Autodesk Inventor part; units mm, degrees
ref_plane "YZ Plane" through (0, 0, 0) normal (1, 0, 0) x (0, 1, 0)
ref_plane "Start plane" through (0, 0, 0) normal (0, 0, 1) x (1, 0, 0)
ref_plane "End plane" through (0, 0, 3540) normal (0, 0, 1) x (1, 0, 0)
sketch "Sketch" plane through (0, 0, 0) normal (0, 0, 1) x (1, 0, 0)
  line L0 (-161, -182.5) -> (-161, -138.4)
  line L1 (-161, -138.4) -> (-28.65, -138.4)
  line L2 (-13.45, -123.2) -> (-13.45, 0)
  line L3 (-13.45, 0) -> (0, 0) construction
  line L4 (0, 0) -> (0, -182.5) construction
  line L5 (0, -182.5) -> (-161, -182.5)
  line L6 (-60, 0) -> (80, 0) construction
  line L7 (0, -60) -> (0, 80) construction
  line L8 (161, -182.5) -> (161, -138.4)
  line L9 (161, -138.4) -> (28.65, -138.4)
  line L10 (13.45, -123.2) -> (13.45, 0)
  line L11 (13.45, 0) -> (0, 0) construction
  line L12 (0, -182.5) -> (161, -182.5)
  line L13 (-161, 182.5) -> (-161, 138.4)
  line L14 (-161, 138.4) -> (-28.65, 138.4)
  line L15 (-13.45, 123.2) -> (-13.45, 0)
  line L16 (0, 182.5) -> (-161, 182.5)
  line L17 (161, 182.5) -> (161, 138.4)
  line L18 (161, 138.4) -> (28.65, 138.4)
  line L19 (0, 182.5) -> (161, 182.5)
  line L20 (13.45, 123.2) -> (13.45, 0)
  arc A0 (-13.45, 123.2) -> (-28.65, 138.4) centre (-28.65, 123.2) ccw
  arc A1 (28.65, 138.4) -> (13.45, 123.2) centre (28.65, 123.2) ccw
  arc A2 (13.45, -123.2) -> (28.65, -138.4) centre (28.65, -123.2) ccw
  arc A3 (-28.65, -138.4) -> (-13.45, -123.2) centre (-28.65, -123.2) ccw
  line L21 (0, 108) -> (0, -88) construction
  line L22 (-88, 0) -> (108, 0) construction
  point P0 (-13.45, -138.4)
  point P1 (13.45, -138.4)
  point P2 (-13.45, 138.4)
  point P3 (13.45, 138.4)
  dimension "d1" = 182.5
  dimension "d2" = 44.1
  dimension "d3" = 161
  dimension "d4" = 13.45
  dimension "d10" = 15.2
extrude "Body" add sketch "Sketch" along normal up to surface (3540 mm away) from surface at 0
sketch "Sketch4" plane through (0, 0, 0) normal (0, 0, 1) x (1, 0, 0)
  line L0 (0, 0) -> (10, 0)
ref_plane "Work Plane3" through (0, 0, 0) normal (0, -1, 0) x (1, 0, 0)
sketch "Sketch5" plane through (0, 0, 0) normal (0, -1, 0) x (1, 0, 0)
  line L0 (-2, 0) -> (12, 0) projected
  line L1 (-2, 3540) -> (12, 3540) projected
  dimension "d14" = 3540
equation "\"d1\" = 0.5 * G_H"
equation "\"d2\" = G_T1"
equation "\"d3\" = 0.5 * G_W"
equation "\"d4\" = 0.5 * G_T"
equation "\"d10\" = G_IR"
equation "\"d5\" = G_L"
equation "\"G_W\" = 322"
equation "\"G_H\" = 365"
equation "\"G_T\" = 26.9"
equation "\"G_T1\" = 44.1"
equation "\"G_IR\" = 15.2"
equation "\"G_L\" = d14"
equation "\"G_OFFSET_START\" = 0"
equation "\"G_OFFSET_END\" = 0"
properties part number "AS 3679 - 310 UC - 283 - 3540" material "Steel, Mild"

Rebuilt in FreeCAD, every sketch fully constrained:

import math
import FreeCAD as App
import Part
import Sketcher

V = App.Vector

doc = App.newDocument("Part")
body = doc.addObject("PartDesign::Body", "Body")

# Sketch on XY plane
sketch1 = doc.addObject("Sketcher::SketchObject", "Sketch")
body.addObject(sketch1)
sketch1.AttachmentSupport = (doc.XY_Plane, [""])
sketch1.MapMode = "FlatFace"
sketch1.addGeometry(Part.LineSegment(V(-161, -138, 0), V(-161, -182, 0)), False)
sketch1.addGeometry(Part.LineSegment(V(-161, -182, 0), V(161, -182, 0)), False)
sketch1.addGeometry(Part.LineSegment(V(161, -182, 0), V(161, -138, 0)), False)
sketch1.addGeometry(Part.LineSegment(V(161, -138, 0), V(29, -138, 0)), False)
sketch1.addGeometry(Part.ArcOfCircle(Part.Circle(V(29, -123, 0), V(0, 0, 1), 15), math.radians(180), math.radians(270)), False)
sketch1.addGeometry(Part.LineSegment(V(13, -123, 0), V(13, 123, 0)), False)
sketch1.addGeometry(Part.ArcOfCircle(Part.Circle(V(29, 123, 0), V(0, 0, 1), 15), math.radians(90), math.radians(180)), False)
sketch1.addGeometry(Part.LineSegment(V(29, 138, 0), V(161, 138, 0)), False)
sketch1.addGeometry(Part.LineSegment(V(161, 138, 0), V(161, 182, 0)), False)
sketch1.addGeometry(Part.LineSegment(V(161, 182, 0), V(-161, 182, 0)), False)
sketch1.addGeometry(Part.LineSegment(V(-161, 182, 0), V(-161, 138, 0)), False)
sketch1.addGeometry(Part.LineSegment(V(-161, 138, 0), V(-29, 138, 0)), False)
sketch1.addGeometry(Part.ArcOfCircle(Part.Circle(V(-29, 123, 0), V(0, 0, 1), 15), math.radians(0), math.radians(90)), False)
sketch1.addGeometry(Part.LineSegment(V(-13, 123, 0), V(-13, -123, 0)), False)
sketch1.addGeometry(Part.ArcOfCircle(Part.Circle(V(-29, -123, 0), V(0, 0, 1), 15), math.radians(-90), math.radians(0)), False)
sketch1.addGeometry(Part.LineSegment(V(-29, -138, 0), V(-161, -138, 0)), False)
sketch1.addConstraint(Sketcher.Constraint("Coincident", 0, 2, 1, 1))
sketch1.addConstraint(Sketcher.Constraint("Coincident", 1, 2, 2, 1))
sketch1.addConstraint(Sketcher.Constraint("Coincident", 2, 2, 3, 1))
sketch1.addConstraint(Sketcher.Constraint("Tangent", 3, 2, 4, 2))
sketch1.addConstraint(Sketcher.Constraint("Tangent", 4, 1, 5, 1))
sketch1.addConstraint(Sketcher.Constraint("Tangent", 5, 2, 6, 2))
sketch1.addConstraint(Sketcher.Constraint("Tangent", 6, 1, 7, 1))
sketch1.addConstraint(Sketcher.Constraint("Coincident", 7, 2, 8, 1))
sketch1.addConstraint(Sketcher.Constraint("Coincident", 8, 2, 9, 1))
sketch1.addConstraint(Sketcher.Constraint("Coincident", 9, 2, 10, 1))
sketch1.addConstraint(Sketcher.Constraint("Coincident", 10, 2, 11, 1))
sketch1.addConstraint(Sketcher.Constraint("Tangent", 11, 2, 12, 2))
sketch1.addConstraint(Sketcher.Constraint("Tangent", 12, 1, 13, 1))
sketch1.addConstraint(Sketcher.Constraint("Tangent", 13, 2, 14, 2))
sketch1.addConstraint(Sketcher.Constraint("Tangent", 14, 1, 15, 1))
sketch1.addConstraint(Sketcher.Constraint("Coincident", 15, 2, 0, 1))
sketch1.addConstraint(Sketcher.Constraint("Vertical", 0))
sketch1.addConstraint(Sketcher.Constraint("Horizontal", 1))
sketch1.addConstraint(Sketcher.Constraint("Vertical", 2))
sketch1.addConstraint(Sketcher.Constraint("Horizontal", 3))
sketch1.addConstraint(Sketcher.Constraint("Vertical", 5))
sketch1.addConstraint(Sketcher.Constraint("Horizontal", 7))
sketch1.addConstraint(Sketcher.Constraint("Vertical", 8))
sketch1.addConstraint(Sketcher.Constraint("Horizontal", 9))
sketch1.addConstraint(Sketcher.Constraint("Vertical", 10))
sketch1.addConstraint(Sketcher.Constraint("Horizontal", 11))
sketch1.addConstraint(Sketcher.Constraint("Vertical", 13))
sketch1.addConstraint(Sketcher.Constraint("Horizontal", 15))
sketch1.addConstraint(Sketcher.Constraint("Equal", 4, 6))
sketch1.addConstraint(Sketcher.Constraint("Equal", 6, 12))
sketch1.addConstraint(Sketcher.Constraint("Equal", 12, 14))
sketch1.addConstraint(Sketcher.Constraint("Symmetric", 4, 3, 12, 3, -1, 1))
sketch1.addConstraint(Sketcher.Constraint("Symmetric", 0, 2, 8, 2, -1, 1))
sketch1.addConstraint(Sketcher.Constraint("Symmetric", 7, 2, 10, 2, -2))
sketch1.addConstraint(Sketcher.Constraint("Symmetric", 2, 2, 15, 2, -2))
sketch1.addConstraint(Sketcher.Constraint("Radius", 4, 15.2))
sketch1.addConstraint(Sketcher.Constraint("DistanceY", 0, 2, 0, 1, 44.1))
sketch1.addConstraint(Sketcher.Constraint("DistanceX", 0, 2, -1, 1, 161.0))
sketch1.addConstraint(Sketcher.Constraint("DistanceY", 0, 2, -1, 1, 182.5))
sketch1.addConstraint(Sketcher.Constraint("DistanceX", -1, 1, 4, 1, 13.45))
pad1 = doc.addObject("PartDesign::Pad", "Pad")
body.addObject(pad1)
pad1.Profile = sketch1
pad1.Length = 3540

doc.recompute()
